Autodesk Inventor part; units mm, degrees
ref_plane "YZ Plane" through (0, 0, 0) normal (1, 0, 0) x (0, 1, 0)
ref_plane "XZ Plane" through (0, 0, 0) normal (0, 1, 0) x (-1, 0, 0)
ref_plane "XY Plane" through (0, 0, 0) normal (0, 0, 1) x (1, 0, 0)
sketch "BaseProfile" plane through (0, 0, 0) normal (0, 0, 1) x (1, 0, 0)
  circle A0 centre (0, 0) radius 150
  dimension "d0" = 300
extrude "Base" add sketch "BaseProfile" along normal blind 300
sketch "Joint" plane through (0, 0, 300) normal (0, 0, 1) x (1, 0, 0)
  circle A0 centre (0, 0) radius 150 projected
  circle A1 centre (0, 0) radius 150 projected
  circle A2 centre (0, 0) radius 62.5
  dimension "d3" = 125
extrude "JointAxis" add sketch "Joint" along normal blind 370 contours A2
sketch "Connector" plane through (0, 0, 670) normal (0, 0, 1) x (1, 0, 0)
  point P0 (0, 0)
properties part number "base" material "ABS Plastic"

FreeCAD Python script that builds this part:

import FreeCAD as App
import Part
import Sketcher
from FreeCAD import Vector
Q = App.Units.Quantity

doc = App.newDocument("Part")
params = doc.addObject("Spreadsheet::Sheet", "Params")
for row, (alias, value) in enumerate([
    ("sketch1_diameter", "300 mm"),
    ("pad1_length", "300 mm"),
    ("sketch2_diameter", "125 mm"),
    ("pad2_length", "370 mm"),
], start=1):
    params.set(f"A{row}", alias)
    params.set(f"B{row}", "=" + value)
    params.setAlias(f"B{row}", alias)

body = doc.addObject("PartDesign::Body", "Body")

sketch1 = body.newObject("Sketcher::SketchObject", "Sketch")
sketch1.AttachmentSupport = (doc.getObject("XY_Plane"), [""])
sketch1.MapMode = "FlatFace"
sketch1.addGeometry(Part.Circle(Vector(0, 0, 0), Vector(0, 0, 1), 150), False)
sketch1.addConstraint([
    Sketcher.Constraint("Coincident", 0, 3, -1, 1),
    Sketcher.Constraint("Diameter", 0, Q("300 mm")),
])
sketch1.setExpression("Constraints[1]", "Params.sketch1_diameter")
pad1 = body.newObject("PartDesign::Pad", "Pad")
pad1.Profile = sketch1
pad1.setExpression("Length", "Params.pad1_length")

sketch2 = body.newObject("Sketcher::SketchObject", "Sketch001")
sketch2.AttachmentSupport = (doc.getObject("XY_Plane"), [""])
sketch2.MapMode = "FlatFace"
sketch2.AttachmentOffset = App.Placement(Vector(0, 0, 300), App.Rotation())
sketch2.addGeometry(Part.Circle(Vector(0, 0, 0), Vector(0, 0, 1), 62.5), False)
sketch2.addConstraint([
    Sketcher.Constraint("Coincident", 0, 3, -1, 1),
    Sketcher.Constraint("Diameter", 0, Q("125 mm")),
])
sketch2.setExpression("Constraints[1]", "Params.sketch2_diameter")
pad2 = body.newObject("PartDesign::Pad", "Pad001")
pad2.Profile = sketch2
pad2.setExpression("Length", "Params.pad2_length")

doc.recompute()
